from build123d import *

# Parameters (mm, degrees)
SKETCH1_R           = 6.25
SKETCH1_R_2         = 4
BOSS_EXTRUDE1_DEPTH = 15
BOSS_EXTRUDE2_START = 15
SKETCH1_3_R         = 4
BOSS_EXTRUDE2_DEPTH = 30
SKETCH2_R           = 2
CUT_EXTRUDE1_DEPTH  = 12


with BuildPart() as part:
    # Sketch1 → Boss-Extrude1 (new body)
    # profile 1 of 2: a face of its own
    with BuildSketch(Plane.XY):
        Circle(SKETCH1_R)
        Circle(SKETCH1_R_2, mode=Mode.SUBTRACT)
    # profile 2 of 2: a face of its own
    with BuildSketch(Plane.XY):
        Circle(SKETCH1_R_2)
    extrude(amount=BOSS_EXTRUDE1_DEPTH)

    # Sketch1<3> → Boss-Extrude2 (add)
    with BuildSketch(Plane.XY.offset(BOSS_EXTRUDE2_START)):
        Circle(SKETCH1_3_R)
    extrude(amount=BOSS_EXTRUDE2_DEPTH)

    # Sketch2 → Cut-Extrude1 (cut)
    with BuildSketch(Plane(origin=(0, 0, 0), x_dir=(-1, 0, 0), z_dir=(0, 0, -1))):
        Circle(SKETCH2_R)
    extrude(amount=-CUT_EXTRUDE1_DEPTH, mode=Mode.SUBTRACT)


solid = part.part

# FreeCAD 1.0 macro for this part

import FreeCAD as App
import Part
import Sketcher

doc = App.newDocument("Part")
body = doc.addObject("PartDesign::Body", "Body")

# Sketch on XY plane
sketch1 = doc.addObject("Sketcher::SketchObject", "Sketch")
body.addObject(sketch1)
sketch1.AttachmentSupport = (doc.XY_Plane, [""])
sketch1.MapMode = "FlatFace"
sketch1.addGeometry(Part.Circle(App.Vector(0, 0, 0), App.Vector(0, 0, 1), 6), False)
sketch1.addConstraint(Sketcher.Constraint("Coincident", 0, 3, -1, 1))
sketch1.addConstraint(Sketcher.Constraint("Diameter", 0, 12.5))
pad1 = doc.addObject("PartDesign::Pad", "Pad")
body.addObject(pad1)
pad1.Profile = sketch1
pad1.Length = 15

# Sketch on XY plane
sketch2 = doc.addObject("Sketcher::SketchObject", "Sketch001")
body.addObject(sketch2)
sketch2.AttachmentSupport = (doc.XY_Plane, [""])
sketch2.MapMode = "FlatFace"
sketch2.AttachmentOffset = App.Placement(App.Vector(0, 0, 15), App.Rotation())
sketch2.addGeometry(Part.Circle(App.Vector(0, 0, 0), App.Vector(0, 0, 1), 4), False)
sketch2.addConstraint(Sketcher.Constraint("Coincident", 0, 3, -1, 1))
sketch2.addConstraint(Sketcher.Constraint("Diameter", 0, 8.0))
pad2 = doc.addObject("PartDesign::Pad", "Pad001")
body.addObject(pad2)
pad2.Profile = sketch2
pad2.Length = 30

# Sketch on XY plane
sketch3 = doc.addObject("Sketcher::SketchObject", "Sketch002")
body.addObject(sketch3)
sketch3.AttachmentSupport = (doc.XY_Plane, [""])
sketch3.MapMode = "FlatFace"
sketch3.addGeometry(Part.Circle(App.Vector(0, 0, 0), App.Vector(0, 0, 1), 2), False)
sketch3.addConstraint(Sketcher.Constraint("Coincident", 0, 3, -1, 1))
sketch3.addConstraint(Sketcher.Constraint("Diameter", 0, 4.0))
pocket1 = doc.addObject("PartDesign::Pocket", "Pocket")
body.addObject(pocket1)
pocket1.Profile = sketch3
pocket1.Length = 12
pocket1.Reversed = True

doc.recompute()
